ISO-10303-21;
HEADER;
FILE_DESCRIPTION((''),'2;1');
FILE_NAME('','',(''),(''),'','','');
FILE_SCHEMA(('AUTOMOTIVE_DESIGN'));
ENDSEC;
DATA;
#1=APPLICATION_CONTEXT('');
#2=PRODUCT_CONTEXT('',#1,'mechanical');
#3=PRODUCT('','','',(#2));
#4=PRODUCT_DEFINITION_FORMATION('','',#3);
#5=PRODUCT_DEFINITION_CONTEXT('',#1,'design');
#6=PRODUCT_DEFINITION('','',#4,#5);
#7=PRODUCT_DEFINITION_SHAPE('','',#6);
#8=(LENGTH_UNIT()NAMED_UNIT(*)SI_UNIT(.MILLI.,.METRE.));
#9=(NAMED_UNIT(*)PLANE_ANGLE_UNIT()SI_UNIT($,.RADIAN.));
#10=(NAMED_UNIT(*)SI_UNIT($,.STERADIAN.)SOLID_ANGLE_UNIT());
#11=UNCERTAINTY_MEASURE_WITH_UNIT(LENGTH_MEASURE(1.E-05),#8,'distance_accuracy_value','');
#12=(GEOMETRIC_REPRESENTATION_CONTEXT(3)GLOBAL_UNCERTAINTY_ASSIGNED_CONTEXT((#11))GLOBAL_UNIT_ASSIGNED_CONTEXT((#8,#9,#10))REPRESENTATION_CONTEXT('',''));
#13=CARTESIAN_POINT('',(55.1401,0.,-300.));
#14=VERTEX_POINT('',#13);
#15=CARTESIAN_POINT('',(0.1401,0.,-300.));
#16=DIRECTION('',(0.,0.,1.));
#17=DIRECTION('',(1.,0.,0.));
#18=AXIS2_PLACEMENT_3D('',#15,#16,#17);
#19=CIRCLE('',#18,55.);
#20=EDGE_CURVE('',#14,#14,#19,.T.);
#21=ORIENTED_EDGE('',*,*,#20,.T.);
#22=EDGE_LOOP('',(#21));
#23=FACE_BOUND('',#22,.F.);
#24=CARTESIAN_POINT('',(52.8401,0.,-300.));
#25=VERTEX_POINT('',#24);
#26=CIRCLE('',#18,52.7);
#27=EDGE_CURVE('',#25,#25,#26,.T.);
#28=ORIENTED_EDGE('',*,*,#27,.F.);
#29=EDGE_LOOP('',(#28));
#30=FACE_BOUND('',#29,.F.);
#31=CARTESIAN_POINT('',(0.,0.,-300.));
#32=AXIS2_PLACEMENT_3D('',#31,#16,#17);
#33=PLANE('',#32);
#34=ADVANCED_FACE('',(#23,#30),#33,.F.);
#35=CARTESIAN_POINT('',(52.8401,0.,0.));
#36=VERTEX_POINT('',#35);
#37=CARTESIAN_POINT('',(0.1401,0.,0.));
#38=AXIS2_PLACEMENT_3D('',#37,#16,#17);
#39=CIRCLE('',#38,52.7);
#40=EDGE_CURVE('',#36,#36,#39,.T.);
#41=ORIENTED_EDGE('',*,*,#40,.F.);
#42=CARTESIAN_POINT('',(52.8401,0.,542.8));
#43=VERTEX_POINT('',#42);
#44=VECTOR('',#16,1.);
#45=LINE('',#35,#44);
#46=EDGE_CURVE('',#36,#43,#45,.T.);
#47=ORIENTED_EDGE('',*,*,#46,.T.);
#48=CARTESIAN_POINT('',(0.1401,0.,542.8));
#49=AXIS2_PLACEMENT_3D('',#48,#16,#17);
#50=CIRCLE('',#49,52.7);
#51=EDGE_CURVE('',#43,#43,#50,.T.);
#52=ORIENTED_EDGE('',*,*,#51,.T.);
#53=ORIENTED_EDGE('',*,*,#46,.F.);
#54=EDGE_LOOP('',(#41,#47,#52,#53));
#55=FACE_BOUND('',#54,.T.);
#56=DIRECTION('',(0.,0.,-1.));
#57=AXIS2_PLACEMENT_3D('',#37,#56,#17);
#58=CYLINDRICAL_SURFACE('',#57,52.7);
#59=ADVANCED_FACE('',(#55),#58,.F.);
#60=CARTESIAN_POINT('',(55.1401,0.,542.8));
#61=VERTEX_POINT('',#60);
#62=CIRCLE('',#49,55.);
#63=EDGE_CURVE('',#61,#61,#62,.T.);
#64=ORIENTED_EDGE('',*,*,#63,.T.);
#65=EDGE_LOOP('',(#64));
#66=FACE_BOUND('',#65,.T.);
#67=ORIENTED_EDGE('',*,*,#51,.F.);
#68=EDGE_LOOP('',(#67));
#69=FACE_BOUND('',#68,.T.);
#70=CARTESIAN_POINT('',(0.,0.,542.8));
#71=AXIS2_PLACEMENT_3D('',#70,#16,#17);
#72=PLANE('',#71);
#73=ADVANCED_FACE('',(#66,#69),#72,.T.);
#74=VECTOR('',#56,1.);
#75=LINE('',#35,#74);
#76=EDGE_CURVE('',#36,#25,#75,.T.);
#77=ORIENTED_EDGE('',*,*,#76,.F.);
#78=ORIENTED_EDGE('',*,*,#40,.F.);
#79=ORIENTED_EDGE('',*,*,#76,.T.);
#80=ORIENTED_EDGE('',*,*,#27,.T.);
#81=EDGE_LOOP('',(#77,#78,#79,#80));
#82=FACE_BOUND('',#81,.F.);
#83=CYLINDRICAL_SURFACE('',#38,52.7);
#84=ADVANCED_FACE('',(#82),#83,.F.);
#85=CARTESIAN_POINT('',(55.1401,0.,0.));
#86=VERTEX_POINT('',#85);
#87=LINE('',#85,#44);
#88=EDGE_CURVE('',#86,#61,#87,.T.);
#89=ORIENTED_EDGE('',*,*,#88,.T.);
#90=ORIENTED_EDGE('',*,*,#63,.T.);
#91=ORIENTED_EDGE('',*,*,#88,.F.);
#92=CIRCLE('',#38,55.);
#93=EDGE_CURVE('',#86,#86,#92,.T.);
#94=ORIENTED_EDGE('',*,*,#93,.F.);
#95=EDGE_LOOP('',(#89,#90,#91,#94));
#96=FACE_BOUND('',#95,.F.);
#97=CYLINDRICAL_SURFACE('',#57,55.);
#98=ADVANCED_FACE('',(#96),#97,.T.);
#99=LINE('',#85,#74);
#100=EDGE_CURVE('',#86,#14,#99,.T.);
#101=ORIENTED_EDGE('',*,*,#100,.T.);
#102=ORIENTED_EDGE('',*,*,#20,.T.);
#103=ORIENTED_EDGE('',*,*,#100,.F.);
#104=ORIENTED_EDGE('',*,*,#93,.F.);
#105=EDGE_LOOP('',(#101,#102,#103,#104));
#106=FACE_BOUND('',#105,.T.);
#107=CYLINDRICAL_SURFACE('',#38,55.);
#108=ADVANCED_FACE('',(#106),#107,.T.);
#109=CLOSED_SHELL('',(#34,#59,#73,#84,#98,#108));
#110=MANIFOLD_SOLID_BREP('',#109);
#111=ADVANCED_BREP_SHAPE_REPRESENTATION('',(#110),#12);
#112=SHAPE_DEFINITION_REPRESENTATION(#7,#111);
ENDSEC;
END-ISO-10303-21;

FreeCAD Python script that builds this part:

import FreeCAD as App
import Part
import Sketcher
from FreeCAD import Vector
Q = App.Units.Quantity

doc = App.newDocument("Part")
body = doc.addObject("PartDesign::Body", "Body")

# Sketch on XY plane
sketch1 = body.newObject("Sketcher::SketchObject", "Sketch")
sketch1.AttachmentSupport = (doc.getObject("XY_Plane"), [""])
sketch1.MapMode = "FlatFace"
sketch1.addGeometry([
    Part.Circle(Vector(0.1401, 0, 0), Vector(0, 0, 1), 55),
    Part.Circle(Vector(0.1401, 0, 0), Vector(0, 0, 1), 52.7),
], False)
sketch1.addConstraint([
    Sketcher.Constraint("Coincident", 1, 3, 0, 3),
    Sketcher.Constraint("PointOnObject", 0, 3, -1),
    Sketcher.Constraint("Diameter", 0, Q("110 mm")),
    Sketcher.Constraint("Diameter", 1, Q("105.4 mm")),
    Sketcher.Constraint("DistanceX", -1, 1, 0, 3, Q("0.14 mm")),
])
pad1 = body.newObject("PartDesign::Pad", "Pad")
pad1.Profile = sketch1
pad1.Type = "TwoLengths"
pad1.Length = 542.8
pad1.Length2 = 300

doc.recompute()
